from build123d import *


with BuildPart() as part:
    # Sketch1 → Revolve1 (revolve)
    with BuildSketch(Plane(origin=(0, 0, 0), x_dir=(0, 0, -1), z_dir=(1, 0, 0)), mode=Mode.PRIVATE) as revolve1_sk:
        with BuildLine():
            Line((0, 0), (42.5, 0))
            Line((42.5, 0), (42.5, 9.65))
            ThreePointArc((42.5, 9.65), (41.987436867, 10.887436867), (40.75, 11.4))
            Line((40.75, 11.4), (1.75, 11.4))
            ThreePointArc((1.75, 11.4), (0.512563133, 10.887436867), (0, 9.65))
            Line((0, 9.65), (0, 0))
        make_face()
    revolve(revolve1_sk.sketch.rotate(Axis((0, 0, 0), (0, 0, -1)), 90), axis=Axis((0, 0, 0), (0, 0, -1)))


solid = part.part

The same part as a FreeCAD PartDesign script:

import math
import FreeCAD as App
import Part
import Sketcher
from FreeCAD import Vector
Q = App.Units.Quantity

doc = App.newDocument("Part")
body = doc.addObject("PartDesign::Body", "Body")

# Sketch on YZ plane
sketch1 = body.newObject("Sketcher::SketchObject", "Sketch")
sketch1.AttachmentSupport = (doc.getObject("YZ_Plane"), [""])
sketch1.MapMode = "FlatFace"
sketch1.addGeometry(Part.LineSegment(Vector(0, 0, 0), Vector(0, -42.5, 0)), False)
sketch1.addGeometry(Part.LineSegment(Vector(0, -42.5, 0), Vector(9.7, -42.5, 0)), False)
sketch1.addGeometry(Part.ArcOfCircle(Part.Circle(Vector(9.7, -40.8, 0), Vector(0, 0, 1), 1.8), math.radians(-90), math.radians(0)), False)
sketch1.addGeometry(Part.LineSegment(Vector(11.4, -40.8, 0), Vector(11.4, -1.8, 0)), False)
sketch1.addGeometry(Part.ArcOfCircle(Part.Circle(Vector(9.7, -1.8, 0), Vector(0, 0, 1), 1.8), math.radians(0), math.radians(90)), False)
sketch1.addGeometry(Part.LineSegment(Vector(9.7, 0, 0), Vector(0, 0, 0)), False)
sketch1.addConstraint(Sketcher.Constraint("Coincident", 0, 2, 1, 1))
sketch1.addConstraint(Sketcher.Constraint("Tangent", 1, 2, 2, 1))
sketch1.addConstraint(Sketcher.Constraint("Tangent", 2, 2, 3, 1))
sketch1.addConstraint(Sketcher.Constraint("Tangent", 3, 2, 4, 1))
sketch1.addConstraint(Sketcher.Constraint("Tangent", 4, 2, 5, 1))
sketch1.addConstraint(Sketcher.Constraint("Coincident", 5, 2, 0, 1))
sketch1.addConstraint(Sketcher.Constraint("Vertical", 0))
sketch1.addConstraint(Sketcher.Constraint("Horizontal", 1))
sketch1.addConstraint(Sketcher.Constraint("Vertical", 3))
sketch1.addConstraint(Sketcher.Constraint("Horizontal", 5))
sketch1.addConstraint(Sketcher.Constraint("Coincident", 5, 2, -1, 1))
sketch1.addConstraint(Sketcher.Constraint("Equal", 2, 4))
sketch1.addConstraint(Sketcher.Constraint("DistanceY", 3, 1, 3, 2, Q("39 mm")))
sketch1.addConstraint(Sketcher.Constraint("Radius", 2, Q("1.75 mm")))
sketch1.addConstraint(Sketcher.Constraint("DistanceX", 1, 1, 1, 2, Q("9.65 mm")))
revolution = body.newObject("PartDesign::Revolution", "Revolution")
revolution.Profile = sketch1
revolution.ReferenceAxis = (sketch1, ["V_Axis"])
revolution.Angle = 360

doc.recompute()
